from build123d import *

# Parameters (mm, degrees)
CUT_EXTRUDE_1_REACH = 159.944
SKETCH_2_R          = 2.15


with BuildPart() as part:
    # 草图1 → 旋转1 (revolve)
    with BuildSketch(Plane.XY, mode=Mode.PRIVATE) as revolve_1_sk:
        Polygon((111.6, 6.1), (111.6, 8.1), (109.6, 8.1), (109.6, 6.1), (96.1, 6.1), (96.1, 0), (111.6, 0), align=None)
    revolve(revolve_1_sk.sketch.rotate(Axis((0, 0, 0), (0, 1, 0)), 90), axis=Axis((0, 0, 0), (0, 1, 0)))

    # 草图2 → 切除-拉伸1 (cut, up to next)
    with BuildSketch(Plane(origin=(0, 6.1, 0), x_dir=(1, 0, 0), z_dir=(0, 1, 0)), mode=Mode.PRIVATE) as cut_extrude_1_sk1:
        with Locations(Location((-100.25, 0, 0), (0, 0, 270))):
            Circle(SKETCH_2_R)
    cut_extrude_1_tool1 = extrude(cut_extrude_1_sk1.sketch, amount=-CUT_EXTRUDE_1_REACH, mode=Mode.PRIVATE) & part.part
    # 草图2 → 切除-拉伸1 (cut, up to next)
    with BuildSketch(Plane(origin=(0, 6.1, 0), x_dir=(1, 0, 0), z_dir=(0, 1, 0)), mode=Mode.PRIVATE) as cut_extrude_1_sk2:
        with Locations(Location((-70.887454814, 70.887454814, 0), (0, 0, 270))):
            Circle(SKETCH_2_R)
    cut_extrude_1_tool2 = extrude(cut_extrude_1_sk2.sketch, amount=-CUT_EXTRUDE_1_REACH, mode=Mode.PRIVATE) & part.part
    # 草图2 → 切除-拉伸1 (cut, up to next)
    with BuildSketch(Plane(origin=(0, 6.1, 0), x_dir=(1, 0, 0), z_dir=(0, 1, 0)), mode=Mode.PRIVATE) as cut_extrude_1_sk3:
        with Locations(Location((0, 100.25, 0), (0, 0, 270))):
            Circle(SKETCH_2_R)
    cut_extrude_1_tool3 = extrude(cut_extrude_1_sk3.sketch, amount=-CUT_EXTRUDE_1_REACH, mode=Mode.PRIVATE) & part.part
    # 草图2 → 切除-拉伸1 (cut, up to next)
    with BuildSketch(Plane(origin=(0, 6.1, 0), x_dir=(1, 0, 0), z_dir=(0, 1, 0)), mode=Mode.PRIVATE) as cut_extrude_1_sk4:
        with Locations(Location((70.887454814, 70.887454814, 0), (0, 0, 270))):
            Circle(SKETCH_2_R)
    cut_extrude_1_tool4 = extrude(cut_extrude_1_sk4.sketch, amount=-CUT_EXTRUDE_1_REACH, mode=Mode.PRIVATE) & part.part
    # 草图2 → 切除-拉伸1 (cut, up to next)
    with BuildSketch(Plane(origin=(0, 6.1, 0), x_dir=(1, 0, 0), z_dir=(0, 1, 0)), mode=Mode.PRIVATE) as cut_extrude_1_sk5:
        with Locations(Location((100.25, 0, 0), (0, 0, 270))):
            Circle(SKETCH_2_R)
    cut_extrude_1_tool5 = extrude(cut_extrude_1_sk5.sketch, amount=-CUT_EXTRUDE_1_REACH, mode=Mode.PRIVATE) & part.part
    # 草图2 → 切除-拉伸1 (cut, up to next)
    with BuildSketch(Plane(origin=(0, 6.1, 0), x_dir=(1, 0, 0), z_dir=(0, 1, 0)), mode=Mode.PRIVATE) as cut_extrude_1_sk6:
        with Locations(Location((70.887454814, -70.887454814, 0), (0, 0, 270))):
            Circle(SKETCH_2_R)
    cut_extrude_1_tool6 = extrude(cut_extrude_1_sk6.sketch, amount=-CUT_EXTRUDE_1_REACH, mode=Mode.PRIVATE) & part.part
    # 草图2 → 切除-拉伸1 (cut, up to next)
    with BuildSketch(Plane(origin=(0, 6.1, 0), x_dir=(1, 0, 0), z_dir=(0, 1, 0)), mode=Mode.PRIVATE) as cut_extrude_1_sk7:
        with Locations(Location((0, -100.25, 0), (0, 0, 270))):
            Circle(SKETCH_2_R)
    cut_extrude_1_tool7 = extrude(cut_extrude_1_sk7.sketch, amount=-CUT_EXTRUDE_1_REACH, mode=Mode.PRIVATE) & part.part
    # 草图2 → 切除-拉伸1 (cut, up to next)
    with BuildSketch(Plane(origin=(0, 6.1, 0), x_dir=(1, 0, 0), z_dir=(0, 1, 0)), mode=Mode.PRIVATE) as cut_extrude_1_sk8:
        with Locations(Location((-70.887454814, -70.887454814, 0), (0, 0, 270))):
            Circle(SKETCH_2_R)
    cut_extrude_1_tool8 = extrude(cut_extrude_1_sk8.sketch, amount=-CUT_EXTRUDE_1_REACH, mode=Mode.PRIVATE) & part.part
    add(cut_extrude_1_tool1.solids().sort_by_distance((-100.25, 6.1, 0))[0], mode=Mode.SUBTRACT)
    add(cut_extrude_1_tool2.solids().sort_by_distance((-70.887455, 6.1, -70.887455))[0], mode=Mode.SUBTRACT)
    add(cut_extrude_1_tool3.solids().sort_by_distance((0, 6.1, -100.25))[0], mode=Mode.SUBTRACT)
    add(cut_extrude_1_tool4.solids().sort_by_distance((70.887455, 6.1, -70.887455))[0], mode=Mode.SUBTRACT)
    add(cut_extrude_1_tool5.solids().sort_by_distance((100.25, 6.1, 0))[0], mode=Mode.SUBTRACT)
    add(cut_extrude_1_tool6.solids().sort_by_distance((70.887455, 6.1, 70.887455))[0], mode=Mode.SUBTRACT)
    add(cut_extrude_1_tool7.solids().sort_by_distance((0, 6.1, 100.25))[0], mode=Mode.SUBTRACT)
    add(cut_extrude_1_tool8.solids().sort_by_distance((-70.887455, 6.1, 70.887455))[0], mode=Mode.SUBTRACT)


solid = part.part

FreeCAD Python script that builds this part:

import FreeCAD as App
import Part
import Sketcher


def add_polygon(sketch, points):
    """Adds a closed chain of lines whose ends are joined by coincident constraints."""
    first, n = sketch.GeometryCount, len(points)
    for a, b in zip(points, points[1:] + points[:1]):
        sketch.addGeometry(Part.LineSegment(App.Vector(*a, 0), App.Vector(*b, 0)), False)
    for i in range(n):
        sketch.addConstraint(Sketcher.Constraint("Coincident", first + i, 2, first + (i + 1) % n, 1))

doc = App.newDocument("Part")
params = doc.addObject("Spreadsheet::Sheet", "Params")
for row, (alias, value) in enumerate([
    ("sketch1_width", "2 mm"),
    ("sketch1_width2", "13.5 mm"),
    ("sketch1_height", "6.1 mm"),
    ("revolution_angle", "360 deg"),
    ("sketch2_diameter", "4.3 mm"),
    ("sketch3_diameter", "4.3 mm"),
    ("sketch4_diameter", "4.3 mm"),
    ("sketch5_diameter", "4.3 mm"),
    ("sketch6_diameter", "4.3 mm"),
    ("sketch7_diameter", "4.3 mm"),
    ("sketch8_diameter", "4.3 mm"),
    ("sketch9_diameter", "4.3 mm"),
], start=1):
    params.set(f"A{row}", alias)
    params.set(f"B{row}", "=" + value)
    params.setAlias(f"B{row}", alias)

body = doc.addObject("PartDesign::Body", "Body")

# Sketch on XY plane
sketch1 = body.newObject("Sketcher::SketchObject", "Sketch")
sketch1.AttachmentSupport = (doc.getObject("XY_Plane"), [""])
sketch1.MapMode = "FlatFace"
add_polygon(sketch1, [(111.6, 8.1), (109.6, 8.1), (109.6, 6.1), (96.1, 6.1), (96.1, 0), (111.6, 0)])  # lines 0-5
sketch1.addConstraint(Sketcher.Constraint("Horizontal", 0))
sketch1.addConstraint(Sketcher.Constraint("Vertical", 1))
sketch1.addConstraint(Sketcher.Constraint("Horizontal", 2))
sketch1.addConstraint(Sketcher.Constraint("Vertical", 3))
sketch1.addConstraint(Sketcher.Constraint("Horizontal", 4))
sketch1.addConstraint(Sketcher.Constraint("Vertical", 5))
sketch1.addConstraint(Sketcher.Constraint("PointOnObject", 3, 2, -1))
sketch1.addConstraint(Sketcher.Constraint("Equal", 0, 1))
sketch1.addConstraint(Sketcher.Constraint("DistanceX", 0, 2, 0, 1, 2.0))
sketch1.addConstraint(Sketcher.Constraint("DistanceX", 2, 2, 2, 1, 13.5))
sketch1.addConstraint(Sketcher.Constraint("DistanceY", 3, 2, 3, 1, 6.1))
sketch1.addConstraint(Sketcher.Constraint("DistanceX", -1, 1, 0, 2, 109.6))
sketch1.setExpression("Constraints[14]", "Params.sketch1_width")
sketch1.setExpression("Constraints[15]", "Params.sketch1_width2")
sketch1.setExpression("Constraints[16]", "Params.sketch1_height")
revolution = body.newObject("PartDesign::Revolution", "Revolution")
revolution.Profile = sketch1
revolution.ReferenceAxis = (sketch1, ["V_Axis"])
revolution.setExpression("Angle", "Params.revolution_angle")

# Sketch on XZ plane
sketch2 = body.newObject("Sketcher::SketchObject", "Sketch001")
sketch2.AttachmentSupport = (doc.getObject("XZ_Plane"), [""])
sketch2.MapMode = "FlatFace"
sketch2.AttachmentOffset = App.Placement(App.Vector(0, 0, -6.1), App.Rotation())
sketch2.addGeometry(Part.Circle(App.Vector(-100.25, 0, 0), App.Vector(0, 0, 1), 2.15), False)
sketch2.addConstraint(Sketcher.Constraint("PointOnObject", 0, 3, -1))
sketch2.addConstraint(Sketcher.Constraint("Diameter", 0, 4.3))
sketch2.addConstraint(Sketcher.Constraint("DistanceX", 0, 3, -1, 1, 100.25))
sketch2.setExpression("Constraints[1]", "Params.sketch2_diameter")
pocket1 = body.newObject("PartDesign::Pocket", "Pocket")
pocket1.Profile = sketch2
pocket1.Type = "UpToFirst"
pocket1.Reversed = True

# Sketch on XZ plane
sketch3 = body.newObject("Sketcher::SketchObject", "Sketch002")
sketch3.AttachmentSupport = (doc.getObject("XZ_Plane"), [""])
sketch3.MapMode = "FlatFace"
sketch3.AttachmentOffset = App.Placement(App.Vector(0, 0, -6.1), App.Rotation())
sketch3.addGeometry(Part.Circle(App.Vector(-70.887455, -70.887455, 0), App.Vector(0, 0, 1), 2.15), False)
sketch3.addConstraint(Sketcher.Constraint("Diameter", 0, 4.3))
sketch3.addConstraint(Sketcher.Constraint("DistanceX", 0, 3, -1, 1, 70.887455))
sketch3.addConstraint(Sketcher.Constraint("DistanceY", 0, 3, -1, 1, 70.887455))
sketch3.setExpression("Constraints[0]", "Params.sketch3_diameter")
pocket2 = body.newObject("PartDesign::Pocket", "Pocket001")
pocket2.Profile = sketch3
pocket2.Type = "UpToFirst"
pocket2.Reversed = True

# Sketch on XZ plane
sketch4 = body.newObject("Sketcher::SketchObject", "Sketch003")
sketch4.AttachmentSupport = (doc.getObject("XZ_Plane"), [""])
sketch4.MapMode = "FlatFace"
sketch4.AttachmentOffset = App.Placement(App.Vector(0, 0, -6.1), App.Rotation())
sketch4.addGeometry(Part.Circle(App.Vector(0, -100.25, 0), App.Vector(0, 0, 1), 2.15), False)
sketch4.addConstraint(Sketcher.Constraint("PointOnObject", 0, 3, -2))
sketch4.addConstraint(Sketcher.Constraint("Diameter", 0, 4.3))
sketch4.addConstraint(Sketcher.Constraint("DistanceY", 0, 3, -1, 1, 100.25))
sketch4.setExpression("Constraints[1]", "Params.sketch4_diameter")
pocket3 = body.newObject("PartDesign::Pocket", "Pocket002")
pocket3.Profile = sketch4
pocket3.Type = "UpToFirst"
pocket3.Reversed = True

# Sketch on XZ plane
sketch5 = body.newObject("Sketcher::SketchObject", "Sketch004")
sketch5.AttachmentSupport = (doc.getObject("XZ_Plane"), [""])
sketch5.MapMode = "FlatFace"
sketch5.AttachmentOffset = App.Placement(App.Vector(0, 0, -6.1), App.Rotation())
sketch5.addGeometry(Part.Circle(App.Vector(70.887455, -70.887455, 0), App.Vector(0, 0, 1), 2.15), False)
sketch5.addConstraint(Sketcher.Constraint("Diameter", 0, 4.3))
sketch5.addConstraint(Sketcher.Constraint("DistanceX", -1, 1, 0, 3, 70.887455))
sketch5.addConstraint(Sketcher.Constraint("DistanceY", 0, 3, -1, 1, 70.887455))
sketch5.setExpression("Constraints[0]", "Params.sketch5_diameter")
pocket4 = body.newObject("PartDesign::Pocket", "Pocket003")
pocket4.Profile = sketch5
pocket4.Type = "UpToFirst"
pocket4.Reversed = True

# Sketch on XZ plane
sketch6 = body.newObject("Sketcher::SketchObject", "Sketch005")
sketch6.AttachmentSupport = (doc.getObject("XZ_Plane"), [""])
sketch6.MapMode = "FlatFace"
sketch6.AttachmentOffset = App.Placement(App.Vector(0, 0, -6.1), App.Rotation())
sketch6.addGeometry(Part.Circle(App.Vector(100.25, 0, 0), App.Vector(0, 0, 1), 2.15), False)
sketch6.addConstraint(Sketcher.Constraint("PointOnObject", 0, 3, -1))
sketch6.addConstraint(Sketcher.Constraint("Diameter", 0, 4.3))
sketch6.addConstraint(Sketcher.Constraint("DistanceX", -1, 1, 0, 3, 100.25))
sketch6.setExpression("Constraints[1]", "Params.sketch6_diameter")
pocket5 = body.newObject("PartDesign::Pocket", "Pocket004")
pocket5.Profile = sketch6
pocket5.Type = "UpToFirst"
pocket5.Reversed = True

# Sketch on XZ plane
sketch7 = body.newObject("Sketcher::SketchObject", "Sketch006")
sketch7.AttachmentSupport = (doc.getObject("XZ_Plane"), [""])
sketch7.MapMode = "FlatFace"
sketch7.AttachmentOffset = App.Placement(App.Vector(0, 0, -6.1), App.Rotation())
sketch7.addGeometry(Part.Circle(App.Vector(70.887455, 70.887455, 0), App.Vector(0, 0, 1), 2.15), False)
sketch7.addConstraint(Sketcher.Constraint("Diameter", 0, 4.3))
sketch7.addConstraint(Sketcher.Constraint("DistanceX", -1, 1, 0, 3, 70.887455))
sketch7.addConstraint(Sketcher.Constraint("DistanceY", -1, 1, 0, 3, 70.887455))
sketch7.setExpression("Constraints[0]", "Params.sketch7_diameter")
pocket6 = body.newObject("PartDesign::Pocket", "Pocket005")
pocket6.Profile = sketch7
pocket6.Type = "UpToFirst"
pocket6.Reversed = True

# Sketch on XZ plane
sketch8 = body.newObject("Sketcher::SketchObject", "Sketch007")
sketch8.AttachmentSupport = (doc.getObject("XZ_Plane"), [""])
sketch8.MapMode = "FlatFace"
sketch8.AttachmentOffset = App.Placement(App.Vector(0, 0, -6.1), App.Rotation())
sketch8.addGeometry(Part.Circle(App.Vector(0, 100.25, 0), App.Vector(0, 0, 1), 2.15), False)
sketch8.addConstraint(Sketcher.Constraint("PointOnObject", 0, 3, -2))
sketch8.addConstraint(Sketcher.Constraint("Diameter", 0, 4.3))
sketch8.addConstraint(Sketcher.Constraint("DistanceY", -1, 1, 0, 3, 100.25))
sketch8.setExpression("Constraints[1]", "Params.sketch8_diameter")
pocket7 = body.newObject("PartDesign::Pocket", "Pocket006")
pocket7.Profile = sketch8
pocket7.Type = "UpToFirst"
pocket7.Reversed = True

# Sketch on XZ plane
sketch9 = body.newObject("Sketcher::SketchObject", "Sketch008")
sketch9.AttachmentSupport = (doc.getObject("XZ_Plane"), [""])
sketch9.MapMode = "FlatFace"
sketch9.AttachmentOffset = App.Placement(App.Vector(0, 0, -6.1), App.Rotation())
sketch9.addGeometry(Part.Circle(App.Vector(-70.887455, 70.887455, 0), App.Vector(0, 0, 1), 2.15), False)
sketch9.addConstraint(Sketcher.Constraint("Diameter", 0, 4.3))
sketch9.addConstraint(Sketcher.Constraint("DistanceX", 0, 3, -1, 1, 70.887455))
sketch9.addConstraint(Sketcher.Constraint("DistanceY", -1, 1, 0, 3, 70.887455))
sketch9.setExpression("Constraints[0]", "Params.sketch9_diameter")
pocket8 = body.newObject("PartDesign::Pocket", "Pocket007")
pocket8.Profile = sketch9
pocket8.Type = "UpToFirst"
pocket8.Reversed = True

doc.recompute()
